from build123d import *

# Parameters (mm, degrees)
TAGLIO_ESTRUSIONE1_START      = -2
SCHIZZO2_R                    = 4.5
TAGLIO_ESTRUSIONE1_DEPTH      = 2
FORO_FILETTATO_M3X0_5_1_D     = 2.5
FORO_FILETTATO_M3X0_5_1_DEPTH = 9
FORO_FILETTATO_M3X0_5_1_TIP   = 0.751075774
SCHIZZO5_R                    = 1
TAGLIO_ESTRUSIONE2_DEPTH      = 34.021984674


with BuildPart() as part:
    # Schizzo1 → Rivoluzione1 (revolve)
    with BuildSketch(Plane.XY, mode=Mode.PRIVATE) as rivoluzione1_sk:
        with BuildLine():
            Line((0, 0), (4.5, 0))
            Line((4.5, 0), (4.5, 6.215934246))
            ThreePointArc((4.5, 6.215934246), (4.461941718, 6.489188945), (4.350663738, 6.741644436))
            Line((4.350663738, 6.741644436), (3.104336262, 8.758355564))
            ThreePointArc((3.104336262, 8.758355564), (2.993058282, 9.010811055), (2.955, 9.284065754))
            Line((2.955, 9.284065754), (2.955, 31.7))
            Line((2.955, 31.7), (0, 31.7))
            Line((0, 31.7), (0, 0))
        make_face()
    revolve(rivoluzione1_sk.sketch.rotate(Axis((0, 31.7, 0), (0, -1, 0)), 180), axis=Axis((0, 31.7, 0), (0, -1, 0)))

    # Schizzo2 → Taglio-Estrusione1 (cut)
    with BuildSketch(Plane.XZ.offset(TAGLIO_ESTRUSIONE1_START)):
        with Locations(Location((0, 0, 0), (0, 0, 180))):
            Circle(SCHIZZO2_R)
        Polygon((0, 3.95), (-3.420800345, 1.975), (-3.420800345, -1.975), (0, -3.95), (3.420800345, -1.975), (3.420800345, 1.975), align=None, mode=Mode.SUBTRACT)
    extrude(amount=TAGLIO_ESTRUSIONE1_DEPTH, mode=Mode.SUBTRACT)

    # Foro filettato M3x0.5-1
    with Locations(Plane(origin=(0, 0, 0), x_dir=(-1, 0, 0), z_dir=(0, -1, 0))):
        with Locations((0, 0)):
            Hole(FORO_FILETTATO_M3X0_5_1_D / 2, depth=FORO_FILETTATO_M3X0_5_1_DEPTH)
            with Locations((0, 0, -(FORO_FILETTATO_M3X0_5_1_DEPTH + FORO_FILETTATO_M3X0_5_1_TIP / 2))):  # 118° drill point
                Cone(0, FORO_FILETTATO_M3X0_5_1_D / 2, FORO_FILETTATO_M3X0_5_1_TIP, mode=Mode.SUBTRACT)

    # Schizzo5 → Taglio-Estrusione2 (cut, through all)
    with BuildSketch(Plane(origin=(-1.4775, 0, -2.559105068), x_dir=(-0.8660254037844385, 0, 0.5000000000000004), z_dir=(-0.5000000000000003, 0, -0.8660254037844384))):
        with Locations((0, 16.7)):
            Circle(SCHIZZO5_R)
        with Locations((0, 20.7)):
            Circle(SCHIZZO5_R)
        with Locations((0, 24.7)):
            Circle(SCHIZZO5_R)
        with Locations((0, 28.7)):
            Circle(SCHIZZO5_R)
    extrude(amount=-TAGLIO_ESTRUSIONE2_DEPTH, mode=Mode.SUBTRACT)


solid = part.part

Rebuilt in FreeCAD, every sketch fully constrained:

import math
import FreeCAD as App
import Part
import Sketcher
Q = App.Units.Quantity

doc = App.newDocument("Part")
body = doc.addObject("PartDesign::Body", "Body")

sketch1 = body.newObject("Sketcher::SketchObject", "Sketch")
sketch1.AttachmentSupport = (doc.getObject("XY_Plane"), [""])
sketch1.MapMode = "FlatFace"
sketch1.addGeometry([
    Part.LineSegment(App.Vector(0, 0, 0), App.Vector(4.5, 0, 0)),
    Part.LineSegment(App.Vector(4.5, 0, 0), App.Vector(4.5, 6.2, 0)),
    Part.ArcOfCircle(Part.Circle(App.Vector(3.5, 6.2, 0), App.Vector(0, 0, 1), 1), math.radians(0), math.radians(32)),
    Part.LineSegment(App.Vector(4.4, 6.7, 0), App.Vector(3.1, 8.8, 0)),
    Part.ArcOfCircle(Part.Circle(App.Vector(4, 9.3, 0), App.Vector(0, 0, 1), 1), math.radians(-180), math.radians(-148)),
    Part.LineSegment(App.Vector(3, 9.3, 0), App.Vector(3, 31.7, 0)),
    Part.LineSegment(App.Vector(3, 31.7, 0), App.Vector(0, 31.7, 0)),
    Part.LineSegment(App.Vector(0, 31.7, 0), App.Vector(0, 0, 0)),
], False)
sketch1.addConstraint([
    Sketcher.Constraint("Coincident", 0, 2, 1, 1),
    Sketcher.Constraint("Tangent", 1, 2, 2, 1),
    Sketcher.Constraint("Tangent", 2, 2, 3, 1),
    Sketcher.Constraint("Tangent", 3, 2, 4, 2),
    Sketcher.Constraint("Tangent", 4, 1, 5, 1),
    Sketcher.Constraint("Coincident", 5, 2, 6, 1),
    Sketcher.Constraint("Coincident", 6, 2, 7, 1),
    Sketcher.Constraint("Coincident", 7, 2, 0, 1),
    Sketcher.Constraint("Horizontal", 0),
    Sketcher.Constraint("Vertical", 1),
    Sketcher.Constraint("Vertical", 5),
    Sketcher.Constraint("Horizontal", 6),
    Sketcher.Constraint("Vertical", 7),
    Sketcher.Constraint("Coincident", 7, 2, -1, 1),
    Sketcher.Constraint("Equal", 2, 4),
    Sketcher.Constraint("Radius", 2, Q("1 mm")),
    Sketcher.Constraint("DistanceX", 0, 1, 0, 2, Q("4.5 mm")),
    Sketcher.Constraint("DistanceY", 7, 2, 7, 1, Q("31.7 mm")),
    Sketcher.Constraint("DistanceX", 6, 2, 6, 1, Q("2.955 mm")),
    Sketcher.Constraint("Distance", 3, Q("2.37075 mm")),
    Sketcher.Constraint("DistanceY", 1, 1, 1, 2, Q("6.215934 mm")),
])
revolution = body.newObject("PartDesign::Revolution", "Revolution")
revolution.Profile = sketch1
revolution.ReferenceAxis = (sketch1, ["V_Axis"])
revolution.Angle = 360

sketch2 = body.newObject("Sketcher::SketchObject", "Sketch001")
sketch2.AttachmentSupport = (doc.getObject("XZ_Plane"), [""])
sketch2.MapMode = "FlatFace"
sketch2.AttachmentOffset = App.Placement(App.Vector(0, 0, -2), App.Rotation())
sketch2.addGeometry([
    Part.Circle(App.Vector(0, 0, 0), App.Vector(0, 0, 1), 4.5),
    Part.LineSegment(App.Vector(-3.4, 2, 0), App.Vector(0, 4, 0)),
    Part.LineSegment(App.Vector(0, 4, 0), App.Vector(3.4, 2, 0)),
    Part.LineSegment(App.Vector(3.4, 2, 0), App.Vector(3.4, -2, 0)),
    Part.LineSegment(App.Vector(3.4, -2, 0), App.Vector(0, -4, 0)),
    Part.LineSegment(App.Vector(0, -4, 0), App.Vector(-3.4, -2, 0)),
    Part.LineSegment(App.Vector(-3.4, -2, 0), App.Vector(-3.4, 2, 0)),
], False)
sketch2.addConstraint([
    Sketcher.Constraint("Coincident", 1, 2, 2, 1),
    Sketcher.Constraint("Coincident", 2, 2, 3, 1),
    Sketcher.Constraint("Coincident", 3, 2, 4, 1),
    Sketcher.Constraint("Coincident", 4, 2, 5, 1),
    Sketcher.Constraint("Coincident", 5, 2, 6, 1),
    Sketcher.Constraint("Coincident", 6, 2, 1, 1),
    Sketcher.Constraint("Vertical", 3),
    Sketcher.Constraint("Vertical", 6),
    Sketcher.Constraint("Coincident", 0, 3, -1, 1),
    Sketcher.Constraint("Symmetric", 1, 2, 4, 2, -1, 1),
    Sketcher.Constraint("Symmetric", 2, 2, 5, 2, -1, 1),
    Sketcher.Constraint("PointOnObject", 1, 2, -2),
    Sketcher.Constraint("Parallel", 1, 4),
    Sketcher.Constraint("Horizontal", 3, 2, 5, 2),
    Sketcher.Constraint("Diameter", 0, Q("9 mm")),
    Sketcher.Constraint("Angle", 1, Q("30 deg")),
    Sketcher.Constraint("DistanceY", 3, 2, 3, 1, Q("3.95 mm")),
    Sketcher.Constraint("DistanceY", 4, 2, 1, 2, Q("7.9 mm")),
])
pocket1 = body.newObject("PartDesign::Pocket", "Pocket")
pocket1.Profile = sketch2
pocket1.Length = 2
pocket1.Reversed = True

sketch3 = body.newObject("Sketcher::SketchObject", "Sketch002")
sketch3.AttachmentSupport = (doc.getObject("XZ_Plane"), [""])
sketch3.MapMode = "FlatFace"
sketch3.addGeometry(Part.Circle(App.Vector(0, 0, 0), App.Vector(0, 0, 1), 1.2), False)
sketch3.addConstraint([
    Sketcher.Constraint("Coincident", 0, 3, -1, 1),
    Sketcher.Constraint("Diameter", 0, Q("2.5 mm")),
])
doc.recompute()
hole = body.newObject("PartDesign::Hole", "Hole")
hole.Profile = sketch3
hole.ThreadType = "None"
hole.Diameter = 2.5
hole.DepthType = "Dimension"
hole.Depth = 9
hole.DrillPoint = "Angled"
hole.DrillPointAngle = 118

sketch4 = body.newObject("Sketcher::SketchObject", "Sketch003")
sketch4.Placement = App.Placement(App.Vector(-1.4775, 0, -2.559105), App.Rotation(App.Vector(-0.866025404, 0, 0.5), App.Vector(0, 1, 0), App.Vector(-0.5, 0, -0.866025404), "ZXY"))
sketch4.addGeometry([
    Part.Circle(App.Vector(0, 16.7, 0), App.Vector(0, 0, 1), 1),
    Part.Circle(App.Vector(0, 20.7, 0), App.Vector(0, 0, 1), 1),
    Part.Circle(App.Vector(0, 24.7, 0), App.Vector(0, 0, 1), 1),
    Part.Circle(App.Vector(0, 28.7, 0), App.Vector(0, 0, 1), 1),
], False)
sketch4.addConstraint([
    Sketcher.Constraint("Equal", 0, 1),
    Sketcher.Constraint("Equal", 1, 2),
    Sketcher.Constraint("Equal", 2, 3),
    Sketcher.Constraint("PointOnObject", 0, 3, -2),
    Sketcher.Constraint("PointOnObject", 1, 3, -2),
    Sketcher.Constraint("PointOnObject", 2, 3, -2),
    Sketcher.Constraint("PointOnObject", 3, 3, -2),
    Sketcher.Constraint("Diameter", 0, Q("2 mm")),
    Sketcher.Constraint("DistanceY", 0, 3, 1, 3, Q("4 mm")),
    Sketcher.Constraint("DistanceY", 1, 3, 2, 3, Q("4 mm")),
    Sketcher.Constraint("DistanceY", 2, 3, 3, 3, Q("4 mm")),
    Sketcher.Constraint("DistanceY", -1, 1, 0, 3, Q("16.7 mm")),
])
pocket2 = body.newObject("PartDesign::Pocket", "Pocket001")
pocket2.Profile = sketch4
pocket2.Type = "ThroughAll"

doc.recompute()
